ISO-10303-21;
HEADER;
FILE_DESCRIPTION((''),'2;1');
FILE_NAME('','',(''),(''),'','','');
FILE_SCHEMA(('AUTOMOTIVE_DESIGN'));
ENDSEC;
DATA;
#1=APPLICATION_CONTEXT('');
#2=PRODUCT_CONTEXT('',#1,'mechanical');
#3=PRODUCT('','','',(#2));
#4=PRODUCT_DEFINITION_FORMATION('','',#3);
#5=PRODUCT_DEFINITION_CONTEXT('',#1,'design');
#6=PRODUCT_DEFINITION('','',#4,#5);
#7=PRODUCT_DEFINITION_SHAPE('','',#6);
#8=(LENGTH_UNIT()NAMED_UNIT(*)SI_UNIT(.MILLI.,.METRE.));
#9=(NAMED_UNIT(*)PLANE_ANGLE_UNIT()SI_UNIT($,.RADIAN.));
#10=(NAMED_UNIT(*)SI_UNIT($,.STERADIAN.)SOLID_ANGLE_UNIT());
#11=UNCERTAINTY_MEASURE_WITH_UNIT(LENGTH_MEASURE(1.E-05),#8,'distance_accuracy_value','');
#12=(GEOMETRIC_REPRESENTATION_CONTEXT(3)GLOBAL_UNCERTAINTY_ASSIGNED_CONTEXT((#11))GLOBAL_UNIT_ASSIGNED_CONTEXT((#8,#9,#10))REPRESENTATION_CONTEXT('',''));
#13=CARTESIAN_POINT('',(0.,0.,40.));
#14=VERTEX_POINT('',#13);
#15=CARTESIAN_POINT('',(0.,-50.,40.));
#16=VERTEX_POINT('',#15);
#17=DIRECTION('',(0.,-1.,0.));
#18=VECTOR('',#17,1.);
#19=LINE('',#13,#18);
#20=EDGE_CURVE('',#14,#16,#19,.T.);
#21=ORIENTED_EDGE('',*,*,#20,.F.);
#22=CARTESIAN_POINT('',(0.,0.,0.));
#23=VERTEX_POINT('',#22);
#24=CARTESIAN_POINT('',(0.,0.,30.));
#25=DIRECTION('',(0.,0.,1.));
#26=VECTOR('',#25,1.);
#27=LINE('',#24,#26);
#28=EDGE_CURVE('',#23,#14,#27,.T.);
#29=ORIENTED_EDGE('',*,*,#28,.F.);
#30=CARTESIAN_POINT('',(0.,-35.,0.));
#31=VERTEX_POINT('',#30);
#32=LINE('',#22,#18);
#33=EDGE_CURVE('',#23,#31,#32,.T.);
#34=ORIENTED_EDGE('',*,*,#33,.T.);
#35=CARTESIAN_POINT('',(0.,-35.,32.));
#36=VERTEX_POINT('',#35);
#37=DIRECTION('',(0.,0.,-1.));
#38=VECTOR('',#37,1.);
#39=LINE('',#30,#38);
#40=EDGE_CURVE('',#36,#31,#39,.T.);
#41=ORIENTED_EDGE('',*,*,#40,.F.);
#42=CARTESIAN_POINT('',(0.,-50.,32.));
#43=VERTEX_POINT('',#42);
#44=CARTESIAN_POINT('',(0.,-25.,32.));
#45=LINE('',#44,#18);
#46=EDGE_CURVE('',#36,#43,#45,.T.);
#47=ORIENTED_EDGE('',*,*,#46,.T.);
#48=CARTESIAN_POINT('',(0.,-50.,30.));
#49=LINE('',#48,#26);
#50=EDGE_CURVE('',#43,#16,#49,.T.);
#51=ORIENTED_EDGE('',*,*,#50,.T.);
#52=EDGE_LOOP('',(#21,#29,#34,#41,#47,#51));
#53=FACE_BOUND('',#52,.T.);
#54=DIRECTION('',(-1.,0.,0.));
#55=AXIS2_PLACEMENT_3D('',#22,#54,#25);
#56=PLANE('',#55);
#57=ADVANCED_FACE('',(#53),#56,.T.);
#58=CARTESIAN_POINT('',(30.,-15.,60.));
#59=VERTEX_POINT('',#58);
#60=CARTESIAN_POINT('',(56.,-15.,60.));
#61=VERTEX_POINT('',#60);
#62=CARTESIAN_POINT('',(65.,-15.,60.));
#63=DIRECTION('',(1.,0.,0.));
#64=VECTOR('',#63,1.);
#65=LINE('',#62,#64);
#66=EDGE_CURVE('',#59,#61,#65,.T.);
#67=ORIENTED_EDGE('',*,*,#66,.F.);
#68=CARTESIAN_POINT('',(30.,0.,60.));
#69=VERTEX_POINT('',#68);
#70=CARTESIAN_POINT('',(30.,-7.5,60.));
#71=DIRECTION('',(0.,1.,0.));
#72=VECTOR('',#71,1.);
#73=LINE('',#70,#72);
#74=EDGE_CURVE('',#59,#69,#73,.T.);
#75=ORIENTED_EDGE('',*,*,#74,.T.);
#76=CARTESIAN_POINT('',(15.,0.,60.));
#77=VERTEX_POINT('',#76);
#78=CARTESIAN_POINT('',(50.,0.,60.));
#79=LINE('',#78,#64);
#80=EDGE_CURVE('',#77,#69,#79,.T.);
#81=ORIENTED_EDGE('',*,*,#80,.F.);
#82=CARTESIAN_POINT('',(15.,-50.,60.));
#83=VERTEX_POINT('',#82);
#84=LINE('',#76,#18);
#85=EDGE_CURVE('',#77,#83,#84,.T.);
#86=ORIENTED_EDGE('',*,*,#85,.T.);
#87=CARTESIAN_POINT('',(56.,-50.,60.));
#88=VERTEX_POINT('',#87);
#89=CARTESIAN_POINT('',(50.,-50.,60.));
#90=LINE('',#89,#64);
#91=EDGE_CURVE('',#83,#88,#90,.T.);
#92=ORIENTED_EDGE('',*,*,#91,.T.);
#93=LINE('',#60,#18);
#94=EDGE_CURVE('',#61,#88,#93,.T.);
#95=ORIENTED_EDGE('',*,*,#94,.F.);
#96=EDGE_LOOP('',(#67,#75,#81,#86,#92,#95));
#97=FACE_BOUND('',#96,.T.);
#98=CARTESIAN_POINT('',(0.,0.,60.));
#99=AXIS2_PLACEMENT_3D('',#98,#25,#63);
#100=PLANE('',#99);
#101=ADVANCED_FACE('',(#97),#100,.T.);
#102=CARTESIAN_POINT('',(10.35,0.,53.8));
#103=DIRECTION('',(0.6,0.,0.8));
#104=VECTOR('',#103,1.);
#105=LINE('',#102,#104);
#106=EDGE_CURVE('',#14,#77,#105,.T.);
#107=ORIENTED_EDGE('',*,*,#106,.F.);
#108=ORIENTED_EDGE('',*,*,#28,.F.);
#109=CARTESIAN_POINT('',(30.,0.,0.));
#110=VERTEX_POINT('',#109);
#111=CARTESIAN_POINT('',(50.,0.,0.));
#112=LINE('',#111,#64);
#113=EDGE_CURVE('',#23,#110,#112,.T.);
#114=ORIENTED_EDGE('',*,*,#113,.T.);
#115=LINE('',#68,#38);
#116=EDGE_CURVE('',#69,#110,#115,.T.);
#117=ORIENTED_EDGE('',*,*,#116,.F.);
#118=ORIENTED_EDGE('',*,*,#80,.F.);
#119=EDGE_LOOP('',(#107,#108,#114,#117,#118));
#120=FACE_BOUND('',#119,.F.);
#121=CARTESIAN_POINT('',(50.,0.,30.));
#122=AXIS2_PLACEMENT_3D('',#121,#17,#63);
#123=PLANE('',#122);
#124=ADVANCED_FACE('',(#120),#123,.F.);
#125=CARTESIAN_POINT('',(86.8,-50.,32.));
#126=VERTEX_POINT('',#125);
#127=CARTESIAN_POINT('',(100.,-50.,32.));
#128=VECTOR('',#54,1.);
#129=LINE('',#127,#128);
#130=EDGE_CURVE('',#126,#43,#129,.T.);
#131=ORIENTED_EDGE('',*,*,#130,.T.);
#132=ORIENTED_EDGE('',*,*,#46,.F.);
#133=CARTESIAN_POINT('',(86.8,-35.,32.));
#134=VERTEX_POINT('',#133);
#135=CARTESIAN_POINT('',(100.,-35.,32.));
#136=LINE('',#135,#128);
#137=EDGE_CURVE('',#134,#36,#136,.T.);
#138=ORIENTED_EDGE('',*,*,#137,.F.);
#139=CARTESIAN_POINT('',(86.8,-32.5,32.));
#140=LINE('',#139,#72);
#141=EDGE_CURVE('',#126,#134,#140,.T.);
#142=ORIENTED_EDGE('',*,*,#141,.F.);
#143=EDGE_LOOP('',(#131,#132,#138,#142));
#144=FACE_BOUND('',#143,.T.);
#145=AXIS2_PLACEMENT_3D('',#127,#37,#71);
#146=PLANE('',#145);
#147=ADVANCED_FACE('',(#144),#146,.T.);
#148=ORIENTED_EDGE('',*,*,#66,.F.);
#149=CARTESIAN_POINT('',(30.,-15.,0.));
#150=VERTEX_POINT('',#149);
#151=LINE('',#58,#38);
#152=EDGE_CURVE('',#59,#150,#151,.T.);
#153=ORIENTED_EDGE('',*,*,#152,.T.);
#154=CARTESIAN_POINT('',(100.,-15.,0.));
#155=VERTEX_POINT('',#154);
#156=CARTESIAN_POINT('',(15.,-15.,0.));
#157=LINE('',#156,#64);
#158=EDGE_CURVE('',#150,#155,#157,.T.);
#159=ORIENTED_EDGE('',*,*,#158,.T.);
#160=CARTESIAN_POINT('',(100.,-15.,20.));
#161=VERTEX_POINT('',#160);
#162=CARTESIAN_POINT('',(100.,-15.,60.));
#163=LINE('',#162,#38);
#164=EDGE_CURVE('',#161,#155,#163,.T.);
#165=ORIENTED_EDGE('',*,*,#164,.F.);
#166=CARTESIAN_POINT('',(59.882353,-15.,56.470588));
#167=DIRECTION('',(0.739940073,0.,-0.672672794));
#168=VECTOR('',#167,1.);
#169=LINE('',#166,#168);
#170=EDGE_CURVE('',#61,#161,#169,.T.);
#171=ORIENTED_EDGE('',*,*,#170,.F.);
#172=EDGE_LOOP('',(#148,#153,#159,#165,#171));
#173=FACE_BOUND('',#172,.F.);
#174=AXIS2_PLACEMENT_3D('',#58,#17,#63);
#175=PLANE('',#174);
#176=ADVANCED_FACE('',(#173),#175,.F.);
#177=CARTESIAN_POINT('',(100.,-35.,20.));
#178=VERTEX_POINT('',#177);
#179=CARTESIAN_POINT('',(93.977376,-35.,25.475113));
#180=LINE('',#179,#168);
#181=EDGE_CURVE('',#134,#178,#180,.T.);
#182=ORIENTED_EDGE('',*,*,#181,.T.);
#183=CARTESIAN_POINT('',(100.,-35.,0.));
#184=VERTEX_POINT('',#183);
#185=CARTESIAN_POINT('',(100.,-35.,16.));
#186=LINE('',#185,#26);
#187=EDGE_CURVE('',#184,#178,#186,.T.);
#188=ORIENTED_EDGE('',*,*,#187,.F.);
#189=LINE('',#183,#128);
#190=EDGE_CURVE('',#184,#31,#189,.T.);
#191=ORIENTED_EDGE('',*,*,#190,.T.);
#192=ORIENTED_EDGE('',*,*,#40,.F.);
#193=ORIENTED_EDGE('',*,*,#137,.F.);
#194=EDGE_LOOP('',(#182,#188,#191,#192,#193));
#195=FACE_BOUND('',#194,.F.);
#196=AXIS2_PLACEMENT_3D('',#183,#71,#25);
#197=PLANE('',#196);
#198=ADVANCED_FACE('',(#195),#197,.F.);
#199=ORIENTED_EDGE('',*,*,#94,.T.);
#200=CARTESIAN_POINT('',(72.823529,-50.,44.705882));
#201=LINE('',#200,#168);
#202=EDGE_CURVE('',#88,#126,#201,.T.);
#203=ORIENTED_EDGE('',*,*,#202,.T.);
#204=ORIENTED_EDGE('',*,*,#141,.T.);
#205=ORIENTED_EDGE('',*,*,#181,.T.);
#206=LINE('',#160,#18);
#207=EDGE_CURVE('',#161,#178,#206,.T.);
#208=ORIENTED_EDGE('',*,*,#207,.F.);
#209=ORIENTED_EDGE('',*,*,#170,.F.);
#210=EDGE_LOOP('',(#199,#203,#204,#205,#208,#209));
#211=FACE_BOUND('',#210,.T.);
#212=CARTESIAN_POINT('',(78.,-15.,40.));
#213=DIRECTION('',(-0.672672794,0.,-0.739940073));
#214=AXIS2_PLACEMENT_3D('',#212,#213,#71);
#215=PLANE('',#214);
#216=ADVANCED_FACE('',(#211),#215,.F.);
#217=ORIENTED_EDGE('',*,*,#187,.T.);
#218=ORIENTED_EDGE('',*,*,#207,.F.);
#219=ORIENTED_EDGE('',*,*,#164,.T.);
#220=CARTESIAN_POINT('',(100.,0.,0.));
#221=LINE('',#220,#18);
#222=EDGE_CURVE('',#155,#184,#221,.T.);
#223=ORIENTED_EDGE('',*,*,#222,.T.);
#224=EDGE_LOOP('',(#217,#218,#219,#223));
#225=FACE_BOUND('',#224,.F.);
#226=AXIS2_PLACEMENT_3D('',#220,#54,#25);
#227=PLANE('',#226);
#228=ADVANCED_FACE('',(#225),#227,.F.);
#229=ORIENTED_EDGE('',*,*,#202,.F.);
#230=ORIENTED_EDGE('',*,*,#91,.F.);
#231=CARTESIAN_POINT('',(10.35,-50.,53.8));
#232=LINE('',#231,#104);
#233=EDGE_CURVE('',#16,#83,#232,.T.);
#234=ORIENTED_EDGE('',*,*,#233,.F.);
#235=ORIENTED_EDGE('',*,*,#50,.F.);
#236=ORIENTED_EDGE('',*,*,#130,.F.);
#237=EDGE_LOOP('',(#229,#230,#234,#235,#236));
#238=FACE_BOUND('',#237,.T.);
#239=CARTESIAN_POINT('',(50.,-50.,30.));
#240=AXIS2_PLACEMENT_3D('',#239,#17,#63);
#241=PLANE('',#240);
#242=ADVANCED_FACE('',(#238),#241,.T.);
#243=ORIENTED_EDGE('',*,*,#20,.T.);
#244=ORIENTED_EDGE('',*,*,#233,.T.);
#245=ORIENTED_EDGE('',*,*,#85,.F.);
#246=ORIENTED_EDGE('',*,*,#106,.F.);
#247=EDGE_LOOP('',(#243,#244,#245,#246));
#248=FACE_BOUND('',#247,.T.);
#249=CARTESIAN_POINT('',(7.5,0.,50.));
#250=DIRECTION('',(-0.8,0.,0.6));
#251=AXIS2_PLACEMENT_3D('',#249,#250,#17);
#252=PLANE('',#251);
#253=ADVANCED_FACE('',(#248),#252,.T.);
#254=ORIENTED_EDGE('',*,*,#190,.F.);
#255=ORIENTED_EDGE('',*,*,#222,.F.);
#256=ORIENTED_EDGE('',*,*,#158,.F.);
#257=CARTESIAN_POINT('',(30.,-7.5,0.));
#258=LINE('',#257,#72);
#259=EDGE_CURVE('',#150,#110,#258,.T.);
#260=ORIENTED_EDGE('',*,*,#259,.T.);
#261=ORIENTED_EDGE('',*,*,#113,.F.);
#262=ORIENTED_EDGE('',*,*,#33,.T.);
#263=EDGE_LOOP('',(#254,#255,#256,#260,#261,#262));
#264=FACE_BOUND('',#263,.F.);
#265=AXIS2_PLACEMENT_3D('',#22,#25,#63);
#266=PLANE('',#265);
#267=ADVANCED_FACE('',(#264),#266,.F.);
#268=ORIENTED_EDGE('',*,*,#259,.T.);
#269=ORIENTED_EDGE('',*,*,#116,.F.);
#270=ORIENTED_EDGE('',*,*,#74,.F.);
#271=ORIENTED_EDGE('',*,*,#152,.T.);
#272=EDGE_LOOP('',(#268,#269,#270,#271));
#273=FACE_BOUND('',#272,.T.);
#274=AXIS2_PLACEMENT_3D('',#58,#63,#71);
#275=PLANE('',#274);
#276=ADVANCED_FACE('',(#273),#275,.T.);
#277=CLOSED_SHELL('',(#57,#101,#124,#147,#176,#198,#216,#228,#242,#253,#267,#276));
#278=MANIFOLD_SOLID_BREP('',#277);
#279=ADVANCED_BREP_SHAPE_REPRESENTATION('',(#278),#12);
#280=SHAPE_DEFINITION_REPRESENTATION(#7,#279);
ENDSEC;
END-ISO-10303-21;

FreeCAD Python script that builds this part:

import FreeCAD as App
import Part
import Sketcher

V = App.Vector
Q = App.Units.Quantity


def edges_at(feature, points):
    """Names of the edges that pass closest to the given points."""
    edges = feature.Shape.Edges
    near = lambda p: min(range(len(edges)), key=lambda i: edges[i].distToShape(Part.Vertex(*p))[0])
    return sorted({f"Edge{near(p) + 1}" for p in points})

doc = App.newDocument("Part")
body = doc.addObject("PartDesign::Body", "Body")

# Sketch on XZ plane
sketch1 = body.newObject("Sketcher::SketchObject", "Sketch")
sketch1.AttachmentSupport = (doc.getObject("XZ_Plane"), [""])
sketch1.MapMode = "FlatFace"
sketch1.addGeometry([
    Part.LineSegment(V(0, 60, 0), V(0, 0, 0)),
    Part.LineSegment(V(0, 0, 0), V(100, 0, 0)),
    Part.LineSegment(V(100, 0, 0), V(100, 60, 0)),
    Part.LineSegment(V(100, 60, 0), V(0, 60, 0)),
], False)
sketch1.addConstraint([
    Sketcher.Constraint("Coincident", 0, 2, 1, 1),
    Sketcher.Constraint("Coincident", 1, 2, 2, 1),
    Sketcher.Constraint("Coincident", 2, 2, 3, 1),
    Sketcher.Constraint("Coincident", 3, 2, 0, 1),
    Sketcher.Constraint("Vertical", 0),
    Sketcher.Constraint("Horizontal", 1),
    Sketcher.Constraint("Vertical", 2),
    Sketcher.Constraint("Horizontal", 3),
    Sketcher.Constraint("Coincident", 0, 2, -1, 1),
    Sketcher.Constraint("DistanceX", 1, 1, 1, 2, Q("100 mm")),
    Sketcher.Constraint("DistanceY", 0, 2, 0, 1, Q("60 mm")),
])
pad1 = body.newObject("PartDesign::Pad", "Pad")
pad1.Profile = sketch1
pad1.Length = 50

# Sketch on YZ plane
sketch2 = body.newObject("Sketcher::SketchObject", "Sketch001")
sketch2.AttachmentSupport = (doc.getObject("YZ_Plane"), [""])
sketch2.MapMode = "FlatFace"
sketch2.AttachmentOffset = App.Placement(V(0, 0, 100), App.Rotation())
sketch2.addGeometry([
    Part.LineSegment(V(-50, 32, 0), V(-50, 0, 0)),
    Part.LineSegment(V(-50, 0, 0), V(-35, 0, 0)),
    Part.LineSegment(V(-35, 0, 0), V(-35, 32, 0)),
    Part.LineSegment(V(-35, 32, 0), V(-50, 32, 0)),
], False)
sketch2.addConstraint([
    Sketcher.Constraint("Coincident", 0, 2, 1, 1),
    Sketcher.Constraint("Coincident", 1, 2, 2, 1),
    Sketcher.Constraint("Coincident", 2, 2, 3, 1),
    Sketcher.Constraint("Coincident", 3, 2, 0, 1),
    Sketcher.Constraint("Vertical", 0),
    Sketcher.Constraint("Horizontal", 1),
    Sketcher.Constraint("Vertical", 2),
    Sketcher.Constraint("Horizontal", 3),
    Sketcher.Constraint("PointOnObject", 0, 2, -1),
    Sketcher.Constraint("DistanceX", 1, 1, 1, 2, Q("15 mm")),
    Sketcher.Constraint("DistanceY", 0, 2, 0, 1, Q("32 mm")),
    Sketcher.Constraint("DistanceX", 0, 2, -1, 1, Q("50 mm")),
])
pocket1 = body.newObject("PartDesign::Pocket", "Pocket")
pocket1.Profile = sketch2
pocket1.Type = "ThroughAll"

# Sketch on XY plane
sketch3 = body.newObject("Sketcher::SketchObject", "Sketch002")
sketch3.AttachmentSupport = (doc.getObject("XY_Plane"), [""])
sketch3.MapMode = "FlatFace"
sketch3.AttachmentOffset = App.Placement(V(0, 0, 60), App.Rotation())
sketch3.addGeometry([
    Part.LineSegment(V(30, 0, 0), V(30, -15, 0)),
    Part.LineSegment(V(30, -15, 0), V(100, -15, 0)),
    Part.LineSegment(V(100, -15, 0), V(100, 0, 0)),
    Part.LineSegment(V(100, 0, 0), V(30, 0, 0)),
], False)
sketch3.addConstraint([
    Sketcher.Constraint("Coincident", 0, 2, 1, 1),
    Sketcher.Constraint("Coincident", 1, 2, 2, 1),
    Sketcher.Constraint("Coincident", 2, 2, 3, 1),
    Sketcher.Constraint("Coincident", 3, 2, 0, 1),
    Sketcher.Constraint("Vertical", 0),
    Sketcher.Constraint("Horizontal", 1),
    Sketcher.Constraint("Vertical", 2),
    Sketcher.Constraint("Horizontal", 3),
    Sketcher.Constraint("PointOnObject", 2, 2, -1),
    Sketcher.Constraint("DistanceX", 1, 1, 1, 2, Q("70 mm")),
    Sketcher.Constraint("DistanceY", 0, 2, 0, 1, Q("15 mm")),
    Sketcher.Constraint("DistanceX", -1, 1, 0, 2, Q("30 mm")),
])
pocket2 = body.newObject("PartDesign::Pocket", "Pocket001")
pocket2.Profile = sketch3
pocket2.Type = "ThroughAll"
doc.recompute()

chamfer = body.newObject("PartDesign::Chamfer", "Chamfer")
chamfer.Base = (pocket2, edges_at(pocket2, [(0, -25, 60)]))
chamfer.ChamferType = "Two distances"
chamfer.Size = 20
chamfer.Size2 = 15
doc.recompute()

chamfer2 = body.newObject("PartDesign::Chamfer", "Chamfer001")
chamfer2.Base = (chamfer, edges_at(chamfer, [(100, -32.5, 60)]))
chamfer2.ChamferType = "Two distances"
chamfer2.Size = 44
chamfer2.Size2 = 40

doc.recompute()
